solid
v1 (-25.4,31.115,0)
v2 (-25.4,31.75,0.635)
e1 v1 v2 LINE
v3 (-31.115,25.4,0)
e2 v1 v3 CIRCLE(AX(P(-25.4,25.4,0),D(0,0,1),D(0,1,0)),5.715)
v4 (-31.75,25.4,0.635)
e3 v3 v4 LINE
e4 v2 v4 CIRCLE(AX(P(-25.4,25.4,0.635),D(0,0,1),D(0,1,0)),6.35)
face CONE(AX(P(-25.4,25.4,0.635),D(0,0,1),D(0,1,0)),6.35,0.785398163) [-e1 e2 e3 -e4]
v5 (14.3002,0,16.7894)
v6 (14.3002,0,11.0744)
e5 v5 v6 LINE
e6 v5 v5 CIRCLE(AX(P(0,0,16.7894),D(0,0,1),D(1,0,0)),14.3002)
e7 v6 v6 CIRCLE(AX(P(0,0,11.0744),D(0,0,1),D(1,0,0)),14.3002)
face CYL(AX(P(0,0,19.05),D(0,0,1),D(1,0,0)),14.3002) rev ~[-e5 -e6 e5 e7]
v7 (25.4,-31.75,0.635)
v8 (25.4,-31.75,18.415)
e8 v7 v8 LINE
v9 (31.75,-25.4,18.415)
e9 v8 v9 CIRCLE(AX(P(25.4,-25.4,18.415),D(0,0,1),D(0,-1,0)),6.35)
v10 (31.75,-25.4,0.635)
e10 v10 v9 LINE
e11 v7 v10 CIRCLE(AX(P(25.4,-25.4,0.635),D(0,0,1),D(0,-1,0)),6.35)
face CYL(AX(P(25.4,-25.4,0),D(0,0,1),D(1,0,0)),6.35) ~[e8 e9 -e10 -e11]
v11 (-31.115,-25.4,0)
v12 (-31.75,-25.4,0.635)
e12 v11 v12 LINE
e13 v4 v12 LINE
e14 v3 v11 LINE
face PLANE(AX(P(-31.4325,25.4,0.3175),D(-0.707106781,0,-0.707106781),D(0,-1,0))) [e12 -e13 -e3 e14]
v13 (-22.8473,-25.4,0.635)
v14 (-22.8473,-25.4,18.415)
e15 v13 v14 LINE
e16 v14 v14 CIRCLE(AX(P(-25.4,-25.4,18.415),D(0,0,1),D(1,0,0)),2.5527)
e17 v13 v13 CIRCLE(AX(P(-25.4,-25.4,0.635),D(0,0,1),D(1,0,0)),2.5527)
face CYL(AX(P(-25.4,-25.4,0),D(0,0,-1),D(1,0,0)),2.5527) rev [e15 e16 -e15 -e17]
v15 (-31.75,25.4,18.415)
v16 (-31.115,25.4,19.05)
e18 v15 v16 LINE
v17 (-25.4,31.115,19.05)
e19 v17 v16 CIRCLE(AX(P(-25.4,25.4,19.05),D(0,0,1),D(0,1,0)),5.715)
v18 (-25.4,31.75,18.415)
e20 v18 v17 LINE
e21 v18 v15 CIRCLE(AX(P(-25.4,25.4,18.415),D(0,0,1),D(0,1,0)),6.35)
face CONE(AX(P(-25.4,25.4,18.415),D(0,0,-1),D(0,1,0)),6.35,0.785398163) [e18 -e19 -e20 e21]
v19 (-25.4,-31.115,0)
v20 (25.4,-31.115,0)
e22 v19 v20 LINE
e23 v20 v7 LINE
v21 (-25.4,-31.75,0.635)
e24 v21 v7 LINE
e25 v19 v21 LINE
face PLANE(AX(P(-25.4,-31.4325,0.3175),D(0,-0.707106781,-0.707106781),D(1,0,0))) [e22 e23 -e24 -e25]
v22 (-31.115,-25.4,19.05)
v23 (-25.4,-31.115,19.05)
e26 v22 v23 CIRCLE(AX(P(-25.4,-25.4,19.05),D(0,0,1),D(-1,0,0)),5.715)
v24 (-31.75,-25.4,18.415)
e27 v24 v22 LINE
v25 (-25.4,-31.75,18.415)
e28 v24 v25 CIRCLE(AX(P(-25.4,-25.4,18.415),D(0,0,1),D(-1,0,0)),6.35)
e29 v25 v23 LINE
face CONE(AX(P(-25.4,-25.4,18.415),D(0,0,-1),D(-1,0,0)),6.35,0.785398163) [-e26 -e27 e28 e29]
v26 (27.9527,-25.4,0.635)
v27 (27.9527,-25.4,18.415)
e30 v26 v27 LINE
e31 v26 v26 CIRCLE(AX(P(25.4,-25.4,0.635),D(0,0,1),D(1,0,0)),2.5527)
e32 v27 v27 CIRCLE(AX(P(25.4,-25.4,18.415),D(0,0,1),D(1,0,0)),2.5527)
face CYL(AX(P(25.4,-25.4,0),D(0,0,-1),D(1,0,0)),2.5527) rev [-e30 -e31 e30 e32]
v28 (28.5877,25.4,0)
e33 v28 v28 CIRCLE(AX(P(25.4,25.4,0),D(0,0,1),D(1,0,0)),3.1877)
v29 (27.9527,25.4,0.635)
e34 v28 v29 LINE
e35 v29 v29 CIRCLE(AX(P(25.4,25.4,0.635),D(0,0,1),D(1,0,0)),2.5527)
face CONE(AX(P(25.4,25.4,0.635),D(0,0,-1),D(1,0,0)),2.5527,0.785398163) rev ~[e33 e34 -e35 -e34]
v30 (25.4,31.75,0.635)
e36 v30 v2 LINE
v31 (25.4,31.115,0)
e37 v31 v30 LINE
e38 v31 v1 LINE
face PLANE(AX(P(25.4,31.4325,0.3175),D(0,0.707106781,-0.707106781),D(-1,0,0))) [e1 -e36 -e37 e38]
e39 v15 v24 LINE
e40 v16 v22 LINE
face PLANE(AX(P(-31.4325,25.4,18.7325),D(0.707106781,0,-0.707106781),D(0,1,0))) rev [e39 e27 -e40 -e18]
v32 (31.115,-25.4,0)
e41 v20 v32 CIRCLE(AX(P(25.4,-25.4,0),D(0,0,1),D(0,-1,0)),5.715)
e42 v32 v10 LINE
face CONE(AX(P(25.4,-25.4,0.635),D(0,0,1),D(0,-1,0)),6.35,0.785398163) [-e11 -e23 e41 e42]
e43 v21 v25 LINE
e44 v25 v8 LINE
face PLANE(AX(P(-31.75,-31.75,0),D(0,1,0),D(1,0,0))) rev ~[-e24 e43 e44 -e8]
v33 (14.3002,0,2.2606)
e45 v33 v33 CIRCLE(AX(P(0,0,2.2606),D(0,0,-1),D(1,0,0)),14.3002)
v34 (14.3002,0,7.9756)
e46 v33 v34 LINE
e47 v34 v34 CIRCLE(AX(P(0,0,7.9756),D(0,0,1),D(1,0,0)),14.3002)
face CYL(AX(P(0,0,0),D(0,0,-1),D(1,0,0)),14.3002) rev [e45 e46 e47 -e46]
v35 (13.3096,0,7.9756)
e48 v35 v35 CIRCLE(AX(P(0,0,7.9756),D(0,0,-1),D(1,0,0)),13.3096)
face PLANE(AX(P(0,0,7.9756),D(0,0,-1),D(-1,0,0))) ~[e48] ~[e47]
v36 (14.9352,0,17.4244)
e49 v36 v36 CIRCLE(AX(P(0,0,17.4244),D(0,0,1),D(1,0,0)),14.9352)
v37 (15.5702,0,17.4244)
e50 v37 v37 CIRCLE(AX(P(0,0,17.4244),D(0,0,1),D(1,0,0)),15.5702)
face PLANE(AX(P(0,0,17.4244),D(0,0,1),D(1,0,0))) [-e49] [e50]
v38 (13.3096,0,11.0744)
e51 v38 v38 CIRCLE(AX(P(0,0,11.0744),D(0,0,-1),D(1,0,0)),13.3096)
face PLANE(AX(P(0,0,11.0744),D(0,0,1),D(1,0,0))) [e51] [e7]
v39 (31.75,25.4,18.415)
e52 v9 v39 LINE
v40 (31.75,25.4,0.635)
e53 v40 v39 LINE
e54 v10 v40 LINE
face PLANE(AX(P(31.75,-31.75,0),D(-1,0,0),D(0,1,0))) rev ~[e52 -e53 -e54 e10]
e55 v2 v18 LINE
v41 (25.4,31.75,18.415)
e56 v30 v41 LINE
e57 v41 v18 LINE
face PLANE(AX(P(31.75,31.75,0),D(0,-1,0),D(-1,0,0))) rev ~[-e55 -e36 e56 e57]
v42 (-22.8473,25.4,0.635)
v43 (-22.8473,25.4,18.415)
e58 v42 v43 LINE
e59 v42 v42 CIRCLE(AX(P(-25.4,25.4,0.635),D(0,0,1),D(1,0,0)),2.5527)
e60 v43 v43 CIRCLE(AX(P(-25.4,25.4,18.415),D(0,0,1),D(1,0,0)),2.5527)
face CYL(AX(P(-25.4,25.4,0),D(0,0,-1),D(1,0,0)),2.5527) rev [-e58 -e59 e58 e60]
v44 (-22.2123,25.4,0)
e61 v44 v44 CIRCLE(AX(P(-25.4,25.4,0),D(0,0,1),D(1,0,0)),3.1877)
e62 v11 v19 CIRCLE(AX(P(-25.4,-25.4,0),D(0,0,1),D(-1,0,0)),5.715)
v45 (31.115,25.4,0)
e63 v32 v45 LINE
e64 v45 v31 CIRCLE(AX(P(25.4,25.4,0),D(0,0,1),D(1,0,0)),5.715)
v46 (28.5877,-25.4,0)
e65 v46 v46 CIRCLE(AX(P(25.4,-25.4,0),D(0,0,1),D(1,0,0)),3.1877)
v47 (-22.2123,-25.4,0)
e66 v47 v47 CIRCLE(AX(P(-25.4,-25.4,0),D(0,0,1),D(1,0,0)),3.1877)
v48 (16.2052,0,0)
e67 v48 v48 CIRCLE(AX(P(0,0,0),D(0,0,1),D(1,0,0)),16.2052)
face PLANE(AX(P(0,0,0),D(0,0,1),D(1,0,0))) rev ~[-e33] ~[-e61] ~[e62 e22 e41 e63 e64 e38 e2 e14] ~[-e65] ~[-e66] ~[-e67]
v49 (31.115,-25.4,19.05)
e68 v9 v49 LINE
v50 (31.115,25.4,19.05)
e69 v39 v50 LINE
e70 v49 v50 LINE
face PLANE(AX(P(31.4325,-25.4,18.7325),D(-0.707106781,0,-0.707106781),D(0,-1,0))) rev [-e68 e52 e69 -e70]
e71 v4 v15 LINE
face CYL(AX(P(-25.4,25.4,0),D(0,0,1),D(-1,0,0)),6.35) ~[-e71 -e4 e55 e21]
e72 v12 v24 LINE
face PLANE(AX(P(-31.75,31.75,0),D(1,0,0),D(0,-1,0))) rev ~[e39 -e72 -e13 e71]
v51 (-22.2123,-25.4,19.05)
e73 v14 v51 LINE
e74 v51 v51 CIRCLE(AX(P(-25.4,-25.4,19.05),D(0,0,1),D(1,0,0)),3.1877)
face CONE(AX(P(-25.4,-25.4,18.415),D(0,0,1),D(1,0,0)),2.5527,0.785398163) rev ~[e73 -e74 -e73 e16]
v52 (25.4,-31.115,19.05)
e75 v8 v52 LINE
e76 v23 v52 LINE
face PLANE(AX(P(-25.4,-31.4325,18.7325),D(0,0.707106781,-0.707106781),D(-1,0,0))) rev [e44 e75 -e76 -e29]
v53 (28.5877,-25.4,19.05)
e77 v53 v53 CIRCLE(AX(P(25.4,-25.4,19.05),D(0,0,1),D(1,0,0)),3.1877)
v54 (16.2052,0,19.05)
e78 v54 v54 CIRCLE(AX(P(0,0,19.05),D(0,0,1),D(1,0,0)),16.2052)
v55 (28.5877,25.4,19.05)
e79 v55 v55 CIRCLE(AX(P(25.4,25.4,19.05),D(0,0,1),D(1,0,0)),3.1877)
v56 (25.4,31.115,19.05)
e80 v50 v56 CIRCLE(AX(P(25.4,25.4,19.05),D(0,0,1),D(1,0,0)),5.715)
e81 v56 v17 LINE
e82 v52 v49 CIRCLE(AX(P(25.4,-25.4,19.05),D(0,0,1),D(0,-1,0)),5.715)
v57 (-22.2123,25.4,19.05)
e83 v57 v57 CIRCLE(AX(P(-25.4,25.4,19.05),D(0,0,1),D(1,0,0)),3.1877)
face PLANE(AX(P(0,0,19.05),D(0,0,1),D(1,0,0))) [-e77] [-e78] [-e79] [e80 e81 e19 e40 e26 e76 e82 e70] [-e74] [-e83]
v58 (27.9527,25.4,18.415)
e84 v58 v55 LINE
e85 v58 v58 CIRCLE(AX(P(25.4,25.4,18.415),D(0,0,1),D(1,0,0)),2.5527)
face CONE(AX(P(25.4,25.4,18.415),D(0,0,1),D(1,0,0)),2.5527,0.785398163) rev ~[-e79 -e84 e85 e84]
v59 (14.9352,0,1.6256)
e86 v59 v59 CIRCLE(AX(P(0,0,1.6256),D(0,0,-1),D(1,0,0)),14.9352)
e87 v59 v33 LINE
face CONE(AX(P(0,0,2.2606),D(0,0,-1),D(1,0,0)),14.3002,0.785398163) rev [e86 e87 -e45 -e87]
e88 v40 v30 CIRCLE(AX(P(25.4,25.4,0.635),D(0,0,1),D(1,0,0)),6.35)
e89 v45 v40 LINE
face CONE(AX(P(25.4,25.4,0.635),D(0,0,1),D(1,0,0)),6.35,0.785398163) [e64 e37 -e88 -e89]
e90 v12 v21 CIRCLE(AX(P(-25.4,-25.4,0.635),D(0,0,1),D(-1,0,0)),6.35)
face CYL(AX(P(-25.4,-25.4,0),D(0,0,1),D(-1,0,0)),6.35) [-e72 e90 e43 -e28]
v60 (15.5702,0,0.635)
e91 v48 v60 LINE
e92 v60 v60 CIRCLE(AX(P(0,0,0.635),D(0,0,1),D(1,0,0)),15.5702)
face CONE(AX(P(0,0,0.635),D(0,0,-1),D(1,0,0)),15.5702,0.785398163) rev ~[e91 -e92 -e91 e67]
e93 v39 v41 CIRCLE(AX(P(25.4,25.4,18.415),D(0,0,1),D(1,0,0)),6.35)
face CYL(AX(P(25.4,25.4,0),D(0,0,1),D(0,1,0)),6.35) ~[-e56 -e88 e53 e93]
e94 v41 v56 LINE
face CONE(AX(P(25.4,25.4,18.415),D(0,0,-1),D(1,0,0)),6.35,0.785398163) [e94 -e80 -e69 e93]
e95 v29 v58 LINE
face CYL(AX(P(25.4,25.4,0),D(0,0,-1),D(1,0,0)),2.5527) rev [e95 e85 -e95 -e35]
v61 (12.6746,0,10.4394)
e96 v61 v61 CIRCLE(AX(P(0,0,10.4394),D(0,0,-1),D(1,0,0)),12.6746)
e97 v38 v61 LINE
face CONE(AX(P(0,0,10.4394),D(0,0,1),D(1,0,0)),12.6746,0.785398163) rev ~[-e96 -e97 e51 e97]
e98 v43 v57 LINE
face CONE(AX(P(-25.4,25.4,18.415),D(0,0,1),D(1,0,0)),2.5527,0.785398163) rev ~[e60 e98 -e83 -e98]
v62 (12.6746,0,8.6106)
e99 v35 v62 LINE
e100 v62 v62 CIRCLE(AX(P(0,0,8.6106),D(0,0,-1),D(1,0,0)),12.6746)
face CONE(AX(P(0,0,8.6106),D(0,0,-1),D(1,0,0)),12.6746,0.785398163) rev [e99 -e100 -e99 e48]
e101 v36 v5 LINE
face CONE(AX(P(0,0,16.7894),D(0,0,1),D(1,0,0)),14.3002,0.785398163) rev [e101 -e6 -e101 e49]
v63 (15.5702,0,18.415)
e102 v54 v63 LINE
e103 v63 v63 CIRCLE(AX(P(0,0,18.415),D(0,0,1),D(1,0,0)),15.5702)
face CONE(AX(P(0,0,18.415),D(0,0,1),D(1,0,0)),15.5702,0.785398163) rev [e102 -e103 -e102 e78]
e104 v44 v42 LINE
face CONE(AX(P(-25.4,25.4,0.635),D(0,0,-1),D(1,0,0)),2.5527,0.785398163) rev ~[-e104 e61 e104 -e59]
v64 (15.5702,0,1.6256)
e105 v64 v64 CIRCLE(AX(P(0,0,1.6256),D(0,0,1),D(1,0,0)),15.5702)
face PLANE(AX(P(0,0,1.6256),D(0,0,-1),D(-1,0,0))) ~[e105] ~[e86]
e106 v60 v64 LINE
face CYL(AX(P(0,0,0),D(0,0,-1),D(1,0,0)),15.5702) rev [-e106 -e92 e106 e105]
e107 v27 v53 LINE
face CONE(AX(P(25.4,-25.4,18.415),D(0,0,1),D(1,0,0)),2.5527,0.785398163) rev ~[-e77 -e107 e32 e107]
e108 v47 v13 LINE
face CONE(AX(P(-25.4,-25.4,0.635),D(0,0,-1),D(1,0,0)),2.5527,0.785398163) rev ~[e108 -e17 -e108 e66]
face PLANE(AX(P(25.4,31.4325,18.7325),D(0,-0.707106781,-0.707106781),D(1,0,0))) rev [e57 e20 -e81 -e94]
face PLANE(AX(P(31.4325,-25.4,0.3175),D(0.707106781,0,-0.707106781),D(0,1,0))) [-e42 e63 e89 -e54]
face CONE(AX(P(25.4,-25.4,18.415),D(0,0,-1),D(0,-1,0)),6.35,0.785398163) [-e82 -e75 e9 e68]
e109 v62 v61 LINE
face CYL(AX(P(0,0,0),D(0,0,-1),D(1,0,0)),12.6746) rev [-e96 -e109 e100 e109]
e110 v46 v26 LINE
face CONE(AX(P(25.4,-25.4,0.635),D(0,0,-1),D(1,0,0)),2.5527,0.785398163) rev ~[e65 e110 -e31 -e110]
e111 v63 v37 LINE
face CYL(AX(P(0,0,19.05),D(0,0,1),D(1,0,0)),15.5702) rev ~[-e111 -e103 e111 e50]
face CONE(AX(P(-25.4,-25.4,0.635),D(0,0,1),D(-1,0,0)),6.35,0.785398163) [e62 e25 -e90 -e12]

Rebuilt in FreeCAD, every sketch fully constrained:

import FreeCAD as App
import Part
import Sketcher
from FreeCAD import Vector
Q = App.Units.Quantity


def edges_at(feature, points):
    """Names of the edges that pass closest to the given points."""
    edges = feature.Shape.Edges
    near = lambda p: min(range(len(edges)), key=lambda i: edges[i].distToShape(Part.Vertex(*p))[0])
    return sorted({f"Edge{near(p) + 1}" for p in points})

doc = App.newDocument("Part")
body = doc.addObject("PartDesign::Body", "Body")

sketch1 = body.newObject("Sketcher::SketchObject", "Sketch")
sketch1.AttachmentSupport = (doc.getObject("XY_Plane"), [""])
sketch1.MapMode = "FlatFace"
sketch1.addGeometry(Part.LineSegment(Vector(-31.8, 31.8, 0), Vector(-31.8, -31.8, 0)), False)
sketch1.addGeometry(Part.LineSegment(Vector(-31.8, -31.8, 0), Vector(31.8, -31.8, 0)), False)
sketch1.addGeometry(Part.LineSegment(Vector(31.8, -31.8, 0), Vector(31.8, 31.8, 0)), False)
sketch1.addGeometry(Part.LineSegment(Vector(31.8, 31.8, 0), Vector(-31.8, 31.8, 0)), False)
sketch1.addGeometry(Part.Circle(Vector(-25.4, -25.4, 0), Vector(0, 0, 1), 2.6), False)
sketch1.addGeometry(Part.Circle(Vector(25.4, -25.4, 0), Vector(0, 0, 1), 2.6), False)
sketch1.addGeometry(Part.Circle(Vector(-25.4, 25.4, 0), Vector(0, 0, 1), 2.6), False)
sketch1.addGeometry(Part.Circle(Vector(0, 0, 0), Vector(0, 0, 1), 12.7), False)
sketch1.addGeometry(Part.Circle(Vector(25.4, 25.4, 0), Vector(0, 0, 1), 2.6), False)
sketch1.addConstraint(Sketcher.Constraint("Coincident", 0, 2, 1, 1))
sketch1.addConstraint(Sketcher.Constraint("Coincident", 1, 2, 2, 1))
sketch1.addConstraint(Sketcher.Constraint("Coincident", 2, 2, 3, 1))
sketch1.addConstraint(Sketcher.Constraint("Coincident", 3, 2, 0, 1))
sketch1.addConstraint(Sketcher.Constraint("Vertical", 0))
sketch1.addConstraint(Sketcher.Constraint("Horizontal", 1))
sketch1.addConstraint(Sketcher.Constraint("Vertical", 2))
sketch1.addConstraint(Sketcher.Constraint("Horizontal", 3))
sketch1.addConstraint(Sketcher.Constraint("Coincident", 7, 3, -1, 1))
sketch1.addConstraint(Sketcher.Constraint("Equal", 4, 5))
sketch1.addConstraint(Sketcher.Constraint("Equal", 5, 6))
sketch1.addConstraint(Sketcher.Constraint("Equal", 6, 8))
sketch1.addConstraint(Sketcher.Constraint("Symmetric", 5, 3, 6, 3, -1, 1))
sketch1.addConstraint(Sketcher.Constraint("Symmetric", 4, 3, 8, 3, -1, 1))
sketch1.addConstraint(Sketcher.Constraint("Symmetric", 0, 2, 2, 2, -1, 1))
sketch1.addConstraint(Sketcher.Constraint("Symmetric", 4, 3, 5, 3, -2))
sketch1.addConstraint(Sketcher.Constraint("Equal", 3, 0))
sketch1.addConstraint(Sketcher.Constraint("Diameter", 4, Q("0.201 in")))
sketch1.addConstraint(Sketcher.Constraint("Diameter", 7, Q("0.998 in")))
sketch1.addConstraint(Sketcher.Constraint("DistanceX", 1, 1, 1, 2, Q("2.5 in")))
sketch1.addConstraint(Sketcher.Constraint("DistanceX", 4, 3, 5, 3, Q("2 in")))
sketch1.addConstraint(Sketcher.Constraint("DistanceY", 4, 3, 6, 3, Q("2 in")))
pad1 = body.newObject("PartDesign::Pad", "Pad")
pad1.Profile = sketch1
pad1.Length = Q("0.75 in")
doc.recompute()

fillet = body.newObject("PartDesign::Fillet", "Fillet")
fillet.Base = (pad1, edges_at(pad1, [
    (31.75, 31.75, 9.525),
    (31.75, -31.75, 9.525),
    (-31.75, -31.75, 9.525),
    (-31.75, 31.75, 9.525),
]))
fillet.Radius = Q("0.25 in")

sketch2 = body.newObject("Sketcher::SketchObject", "Sketch001")
sketch2.AttachmentSupport = (doc.getObject("XY_Plane"), [""])
sketch2.MapMode = "FlatFace"
sketch2.AttachmentOffset = App.Placement(Vector(0, 0, 0.75 * 25.4), App.Rotation())
sketch2.addGeometry(Part.Circle(Vector(0, 0, 0), Vector(0, 0, 1), 14), False)
sketch2.addConstraint(Sketcher.Constraint("Coincident", 0, 3, -1, 1))
sketch2.addConstraint(Sketcher.Constraint("Diameter", 0, Q("1.126 in")))
pocket1 = body.newObject("PartDesign::Pocket", "Pocket")
pocket1.Profile = sketch2
pocket1.Length = Q("0.314 in")

sketch3 = body.newObject("Sketcher::SketchObject", "Sketch002")
sketch3.AttachmentSupport = (doc.getObject("XY_Plane"), [""])
sketch3.MapMode = "FlatFace"
sketch3.AttachmentOffset = App.Placement(Vector(0, 0, 0.75 * 25.4), App.Rotation())
sketch3.addGeometry(Part.Circle(Vector(0, 0, 0), Vector(0, 0, 1), 16), False)
sketch3.addConstraint(Sketcher.Constraint("Coincident", 0, 3, -1, 1))
sketch3.addConstraint(Sketcher.Constraint("Diameter", 0, Q("1.226 in")))
pocket2 = body.newObject("PartDesign::Pocket", "Pocket001")
pocket2.Profile = sketch3
pocket2.Length = Q("0.064 in")
doc.recompute()

datumplane = body.newObject("PartDesign::Plane", "DatumPlane")
datumplane.AttachmentSupport = (doc.getObject("XY_Plane"), [""])
datumplane.MapMode = "FlatFace"
datumplane.AttachmentOffset = App.Placement(Vector(0, 0, 0.375 * 25.4), App.Rotation())
mirrored = body.newObject("PartDesign::Mirrored", "Mirrored")
mirrored.Originals = [pocket1, pocket2]
mirrored.MirrorPlane = (datumplane, [""])
body.Tip = mirrored
doc.recompute()

chamfer = body.newObject("PartDesign::Chamfer", "Chamfer")
chamfer.Base = (mirrored, edges_at(mirrored, [
    (-31.75, 0, 19.05),
    (-29.89, -29.89, 19.05),
    (0, -31.75, 19.05),
    (29.89, -29.89, 19.05),
    (31.75, 0, 19.05),
    (29.89, 29.89, 19.05),
    (0, 31.75, 19.05),
    (-29.89, 29.89, 19.05),
    (0, -31.75, 0),
    (29.89, -29.89, 0),
    (31.75, 0, 0),
    (29.89, 29.89, 0),
    (0, 31.75, 0),
    (-29.89, 29.89, 0),
    (-31.75, 0, 0),
    (-29.89, -29.89, 0),
]))
chamfer.Size = Q("0.025 in")
doc.recompute()

chamfer2 = body.newObject("PartDesign::Chamfer", "Chamfer001")
chamfer2.Base = (chamfer, edges_at(chamfer, [
    (-15.57, 0, 19.05),
    (-14.3, 0, 17.424),
    (-12.675, 0, 11.074),
    (-12.675, 0, 7.976),
    (-14.3, 0, 1.626),
    (-15.57, 0, 0),
]))
chamfer2.Size = Q("0.025 in")
doc.recompute()

chamfer3 = body.newObject("PartDesign::Chamfer", "Chamfer002")
chamfer3.Base = (chamfer2, edges_at(chamfer2, [
    (-27.953, -25.4, 19.05),
    (22.847, -25.4, 19.05),
    (22.847, 25.4, 19.05),
    (-27.953, 25.4, 19.05),
    (22.847, 25.4, 0),
    (22.847, -25.4, 0),
    (-27.953, -25.4, 0),
    (-27.953, 25.4, 0),
]))
chamfer3.Size = Q("0.025 in")

doc.recompute()
